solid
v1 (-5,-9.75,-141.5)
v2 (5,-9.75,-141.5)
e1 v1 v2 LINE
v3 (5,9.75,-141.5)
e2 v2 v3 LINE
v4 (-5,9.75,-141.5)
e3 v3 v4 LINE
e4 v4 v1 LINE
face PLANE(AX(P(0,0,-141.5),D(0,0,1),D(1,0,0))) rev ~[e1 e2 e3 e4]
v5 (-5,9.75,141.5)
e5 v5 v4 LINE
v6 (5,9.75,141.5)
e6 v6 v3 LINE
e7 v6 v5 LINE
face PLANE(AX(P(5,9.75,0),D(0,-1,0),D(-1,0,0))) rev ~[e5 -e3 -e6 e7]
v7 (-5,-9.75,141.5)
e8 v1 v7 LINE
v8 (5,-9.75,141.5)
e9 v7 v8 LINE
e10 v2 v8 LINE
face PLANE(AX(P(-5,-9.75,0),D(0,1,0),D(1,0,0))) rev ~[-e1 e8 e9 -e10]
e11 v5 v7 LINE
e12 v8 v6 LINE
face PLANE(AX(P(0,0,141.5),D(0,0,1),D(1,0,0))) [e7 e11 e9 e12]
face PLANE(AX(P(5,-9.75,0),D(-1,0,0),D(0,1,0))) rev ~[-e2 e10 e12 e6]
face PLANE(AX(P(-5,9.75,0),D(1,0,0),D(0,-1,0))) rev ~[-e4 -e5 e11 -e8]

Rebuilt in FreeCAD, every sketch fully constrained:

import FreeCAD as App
import Part
import Sketcher
from FreeCAD import Vector
Q = App.Units.Quantity

doc = App.newDocument("Part")
body = doc.addObject("PartDesign::Body", "Body")

sketch1 = body.newObject("Sketcher::SketchObject", "Sketch")
sketch1.AttachmentSupport = (doc.getObject("XY_Plane"), [""])
sketch1.MapMode = "FlatFace"
sketch1.addGeometry(Part.LineSegment(Vector(-5, 10, 0), Vector(-5, -10, 0)), False)
sketch1.addGeometry(Part.LineSegment(Vector(-5, -10, 0), Vector(5, -10, 0)), False)
sketch1.addGeometry(Part.LineSegment(Vector(5, -10, 0), Vector(5, 10, 0)), False)
sketch1.addGeometry(Part.LineSegment(Vector(5, 10, 0), Vector(-5, 10, 0)), False)
sketch1.addConstraint(Sketcher.Constraint("Coincident", 0, 2, 1, 1))
sketch1.addConstraint(Sketcher.Constraint("Coincident", 1, 2, 2, 1))
sketch1.addConstraint(Sketcher.Constraint("Coincident", 2, 2, 3, 1))
sketch1.addConstraint(Sketcher.Constraint("Coincident", 3, 2, 0, 1))
sketch1.addConstraint(Sketcher.Constraint("Vertical", 0))
sketch1.addConstraint(Sketcher.Constraint("Horizontal", 1))
sketch1.addConstraint(Sketcher.Constraint("Vertical", 2))
sketch1.addConstraint(Sketcher.Constraint("Horizontal", 3))
sketch1.addConstraint(Sketcher.Constraint("Symmetric", 0, 2, 2, 2, -1, 1))
sketch1.addConstraint(Sketcher.Constraint("DistanceX", 1, 1, 1, 2, Q("10 mm")))
sketch1.addConstraint(Sketcher.Constraint("DistanceY", 0, 2, 0, 1, Q("19.5 mm")))
pad1 = body.newObject("PartDesign::Pad", "Pad")
pad1.Profile = sketch1
pad1.Length = 283
pad1.Midplane = True

doc.recompute()
